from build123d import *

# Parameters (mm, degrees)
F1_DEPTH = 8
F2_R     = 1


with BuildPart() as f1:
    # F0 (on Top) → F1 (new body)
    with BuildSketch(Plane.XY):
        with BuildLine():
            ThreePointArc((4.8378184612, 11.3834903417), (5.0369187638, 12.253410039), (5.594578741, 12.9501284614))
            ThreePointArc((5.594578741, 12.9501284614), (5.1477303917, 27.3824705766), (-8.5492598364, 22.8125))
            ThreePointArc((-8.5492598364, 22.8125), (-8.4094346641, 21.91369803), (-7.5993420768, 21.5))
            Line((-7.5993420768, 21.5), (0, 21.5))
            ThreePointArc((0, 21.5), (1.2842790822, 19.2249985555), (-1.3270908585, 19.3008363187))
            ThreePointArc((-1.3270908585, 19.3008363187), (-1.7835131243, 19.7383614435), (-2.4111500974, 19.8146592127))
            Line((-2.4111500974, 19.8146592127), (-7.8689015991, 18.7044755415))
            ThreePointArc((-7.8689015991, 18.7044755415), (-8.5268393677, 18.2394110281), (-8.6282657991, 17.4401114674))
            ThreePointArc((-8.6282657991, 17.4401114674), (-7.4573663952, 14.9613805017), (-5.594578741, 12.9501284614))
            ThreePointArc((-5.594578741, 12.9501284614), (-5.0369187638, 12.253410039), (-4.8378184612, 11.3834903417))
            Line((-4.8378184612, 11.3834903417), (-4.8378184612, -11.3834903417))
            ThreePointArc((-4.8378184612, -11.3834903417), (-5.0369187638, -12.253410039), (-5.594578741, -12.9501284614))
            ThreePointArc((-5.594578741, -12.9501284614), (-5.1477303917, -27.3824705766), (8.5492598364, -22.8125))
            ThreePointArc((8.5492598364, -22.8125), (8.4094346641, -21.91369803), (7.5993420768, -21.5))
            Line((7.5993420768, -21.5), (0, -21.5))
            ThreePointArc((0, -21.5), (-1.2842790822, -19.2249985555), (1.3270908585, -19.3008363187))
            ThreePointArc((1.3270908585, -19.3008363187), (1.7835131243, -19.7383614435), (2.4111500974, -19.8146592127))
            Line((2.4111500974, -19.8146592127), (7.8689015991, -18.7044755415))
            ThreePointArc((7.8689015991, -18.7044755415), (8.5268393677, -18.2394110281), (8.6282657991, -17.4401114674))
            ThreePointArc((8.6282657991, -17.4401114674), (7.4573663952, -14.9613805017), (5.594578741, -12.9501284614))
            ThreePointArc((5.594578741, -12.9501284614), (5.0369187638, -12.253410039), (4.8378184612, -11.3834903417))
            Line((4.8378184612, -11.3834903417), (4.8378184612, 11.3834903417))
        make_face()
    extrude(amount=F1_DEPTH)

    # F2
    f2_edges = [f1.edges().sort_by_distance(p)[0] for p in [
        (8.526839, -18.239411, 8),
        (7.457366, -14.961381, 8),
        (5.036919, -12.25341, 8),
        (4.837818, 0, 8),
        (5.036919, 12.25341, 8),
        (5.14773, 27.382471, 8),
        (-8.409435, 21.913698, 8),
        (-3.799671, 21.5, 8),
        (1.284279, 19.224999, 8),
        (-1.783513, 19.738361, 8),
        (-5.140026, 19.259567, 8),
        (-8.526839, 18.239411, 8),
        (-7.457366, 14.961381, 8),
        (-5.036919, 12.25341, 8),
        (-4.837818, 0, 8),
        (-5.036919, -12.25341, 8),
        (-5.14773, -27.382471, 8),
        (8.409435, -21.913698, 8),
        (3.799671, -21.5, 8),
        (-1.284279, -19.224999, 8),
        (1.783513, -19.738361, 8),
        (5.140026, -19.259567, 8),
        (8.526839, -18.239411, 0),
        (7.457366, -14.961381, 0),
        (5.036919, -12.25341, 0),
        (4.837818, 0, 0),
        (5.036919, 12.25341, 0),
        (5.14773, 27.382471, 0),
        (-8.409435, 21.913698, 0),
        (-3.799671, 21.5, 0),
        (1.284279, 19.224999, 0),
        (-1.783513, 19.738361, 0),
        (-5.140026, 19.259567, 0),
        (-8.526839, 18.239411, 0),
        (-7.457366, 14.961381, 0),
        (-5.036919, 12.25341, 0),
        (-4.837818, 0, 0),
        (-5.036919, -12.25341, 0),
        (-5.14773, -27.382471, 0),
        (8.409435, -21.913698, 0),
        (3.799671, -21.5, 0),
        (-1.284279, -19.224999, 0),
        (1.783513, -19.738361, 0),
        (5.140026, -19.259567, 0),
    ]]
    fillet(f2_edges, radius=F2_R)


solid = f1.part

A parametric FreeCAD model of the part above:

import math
import FreeCAD as App
import Part
import Sketcher

V = App.Vector


def edges_at(feature, points):
    """Names of the edges that pass closest to the given points."""
    edges = feature.Shape.Edges
    near = lambda p: min(range(len(edges)), key=lambda i: edges[i].distToShape(Part.Vertex(*p))[0])
    return sorted({f"Edge{near(p) + 1}" for p in points})

doc = App.newDocument("Part")
body = doc.addObject("PartDesign::Body", "Body")

sketch1 = body.newObject("Sketcher::SketchObject", "Sketch")
sketch1.AttachmentSupport = (doc.getObject("XY_Plane"), [""])
sketch1.MapMode = "FlatFace"
sketch1.addGeometry(Part.ArcOfCircle(Part.Circle(V(6.837818, 11.38349, 0), V(0, 0, 1), 2), math.radians(128.434522), math.radians(180)), False)
sketch1.addGeometry(Part.ArcOfCircle(Part.Circle(V(0, 20, 0), V(0, 0, 1), 9), math.radians(-51.565478), math.radians(161.790043)), False)
sketch1.addGeometry(Part.ArcOfCircle(Part.Circle(V(-7.599342, 22.5, 0), V(0, 0, 1), 1), math.radians(161.790043), math.radians(270)), False)
sketch1.addGeometry(Part.LineSegment(V(-7.599342, 21.5, 0), V(0, 21.5, 0)), False)
sketch1.addGeometry(Part.ArcOfCircle(Part.Circle(V(0, 20, 0), V(0, 0, 1), 1.5), math.radians(-152.217974), math.radians(90)), False)
sketch1.addGeometry(Part.ArcOfCircle(Part.Circle(V(-2.211818, 18.834727, 0), V(0, 0, 1), 1), math.radians(27.782026), math.radians(101.497899)), False)
sketch1.addGeometry(Part.LineSegment(V(-2.41115, 19.814659, 0), V(-7.868902, 18.704476, 0)), False)
sketch1.addGeometry(Part.ArcOfCircle(Part.Circle(V(-7.66957, 17.724544, 0), V(0, 0, 1), 1), math.radians(101.497899), math.radians(196.524903)), False)
sketch1.addGeometry(Part.ArcOfCircle(Part.Circle(V(0, 20, 0), V(0, 0, 1), 9), math.radians(-163.475097), math.radians(-128.434522)), False)
sketch1.addGeometry(Part.ArcOfCircle(Part.Circle(V(-6.837818, 11.38349, 0), V(0, 0, 1), 2), math.radians(0), math.radians(51.565478)), False)
sketch1.addGeometry(Part.LineSegment(V(-4.837818, 11.38349, 0), V(-4.837818, -11.38349, 0)), False)
sketch1.addGeometry(Part.ArcOfCircle(Part.Circle(V(-6.837818, -11.38349, 0), V(0, 0, 1), 2), math.radians(-51.565478), math.radians(0)), False)
sketch1.addGeometry(Part.ArcOfCircle(Part.Circle(V(0, -20, 0), V(0, 0, 1), 9), math.radians(128.434522), math.radians(341.790043)), False)
sketch1.addGeometry(Part.ArcOfCircle(Part.Circle(V(7.599342, -22.5, 0), V(0, 0, 1), 1), math.radians(-18.209957), math.radians(90)), False)
sketch1.addGeometry(Part.LineSegment(V(7.599342, -21.5, 0), V(0, -21.5, 0)), False)
sketch1.addGeometry(Part.ArcOfCircle(Part.Circle(V(0, -20, 0), V(0, 0, 1), 1.5), math.radians(27.782026), math.radians(270)), False)
sketch1.addGeometry(Part.ArcOfCircle(Part.Circle(V(2.211818, -18.834727, 0), V(0, 0, 1), 1), math.radians(-152.217974), math.radians(-78.502101)), False)
sketch1.addGeometry(Part.LineSegment(V(2.41115, -19.814659, 0), V(7.868902, -18.704476, 0)), False)
sketch1.addGeometry(Part.ArcOfCircle(Part.Circle(V(7.66957, -17.724544, 0), V(0, 0, 1), 1), math.radians(-78.502101), math.radians(16.524903)), False)
sketch1.addGeometry(Part.ArcOfCircle(Part.Circle(V(0, -20, 0), V(0, 0, 1), 9), math.radians(16.524903), math.radians(51.565478)), False)
sketch1.addGeometry(Part.ArcOfCircle(Part.Circle(V(6.837818, -11.38349, 0), V(0, 0, 1), 2), math.radians(180), math.radians(231.565478)), False)
sketch1.addGeometry(Part.LineSegment(V(4.837818, -11.38349, 0), V(4.837818, 11.38349, 0)), False)
sketch1.addConstraint(Sketcher.Constraint("Tangent", 0, 1, 1, 1))
sketch1.addConstraint(Sketcher.Constraint("Tangent", 1, 2, 2, 1))
sketch1.addConstraint(Sketcher.Constraint("Tangent", 2, 2, 3, 1))
sketch1.addConstraint(Sketcher.Constraint("Tangent", 3, 2, 4, 2))
sketch1.addConstraint(Sketcher.Constraint("Tangent", 4, 1, 5, 1))
sketch1.addConstraint(Sketcher.Constraint("Tangent", 5, 2, 6, 1))
sketch1.addConstraint(Sketcher.Constraint("Tangent", 6, 2, 7, 1))
sketch1.addConstraint(Sketcher.Constraint("Tangent", 7, 2, 8, 1))
sketch1.addConstraint(Sketcher.Constraint("Tangent", 8, 2, 9, 2))
sketch1.addConstraint(Sketcher.Constraint("Tangent", 9, 1, 10, 1))
sketch1.addConstraint(Sketcher.Constraint("Tangent", 10, 2, 11, 2))
sketch1.addConstraint(Sketcher.Constraint("Tangent", 11, 1, 12, 1))
sketch1.addConstraint(Sketcher.Constraint("Tangent", 12, 2, 13, 1))
sketch1.addConstraint(Sketcher.Constraint("Tangent", 13, 2, 14, 1))
sketch1.addConstraint(Sketcher.Constraint("Tangent", 14, 2, 15, 2))
sketch1.addConstraint(Sketcher.Constraint("Tangent", 15, 1, 16, 1))
sketch1.addConstraint(Sketcher.Constraint("Tangent", 16, 2, 17, 1))
sketch1.addConstraint(Sketcher.Constraint("Tangent", 17, 2, 18, 1))
sketch1.addConstraint(Sketcher.Constraint("Tangent", 18, 2, 19, 1))
sketch1.addConstraint(Sketcher.Constraint("Tangent", 19, 2, 20, 2))
sketch1.addConstraint(Sketcher.Constraint("Tangent", 20, 1, 21, 1))
sketch1.addConstraint(Sketcher.Constraint("Tangent", 21, 2, 0, 2))
sketch1.addConstraint(Sketcher.Constraint("Horizontal", 3))
sketch1.addConstraint(Sketcher.Constraint("Vertical", 10))
sketch1.addConstraint(Sketcher.Constraint("Horizontal", 14))
sketch1.addConstraint(Sketcher.Constraint("Vertical", 21))
sketch1.addConstraint(Sketcher.Constraint("Coincident", 4, 3, 1, 3))
sketch1.addConstraint(Sketcher.Constraint("Coincident", 8, 3, 1, 3))
sketch1.addConstraint(Sketcher.Constraint("Coincident", 15, 3, 12, 3))
sketch1.addConstraint(Sketcher.Constraint("Coincident", 19, 3, 12, 3))
sketch1.addConstraint(Sketcher.Constraint("Equal", 2, 5))
sketch1.addConstraint(Sketcher.Constraint("Equal", 5, 7))
sketch1.addConstraint(Sketcher.Constraint("Equal", 1, 8))
sketch1.addConstraint(Sketcher.Constraint("Equal", 0, 9))
sketch1.addConstraint(Sketcher.Constraint("Equal", 9, 11))
sketch1.addConstraint(Sketcher.Constraint("Equal", 8, 12))
sketch1.addConstraint(Sketcher.Constraint("Equal", 7, 13))
sketch1.addConstraint(Sketcher.Constraint("Equal", 4, 15))
sketch1.addConstraint(Sketcher.Constraint("Equal", 13, 16))
sketch1.addConstraint(Sketcher.Constraint("Equal", 16, 18))
sketch1.addConstraint(Sketcher.Constraint("Equal", 12, 19))
sketch1.addConstraint(Sketcher.Constraint("Equal", 11, 20))
sketch1.addConstraint(Sketcher.Constraint("Symmetric", 0, 3, 11, 3, -1, 1))
sketch1.addConstraint(Sketcher.Constraint("Symmetric", 5, 3, 16, 3, -1, 1))
sketch1.addConstraint(Sketcher.Constraint("PointOnObject", 1, 3, -2))
sketch1.addConstraint(Sketcher.Constraint("Parallel", 6, 17))
sketch1.addConstraint(Sketcher.Constraint("Radius", 0, 2.0))
sketch1.addConstraint(Sketcher.Constraint("Radius", 1, 9.0))
sketch1.addConstraint(Sketcher.Constraint("Radius", 2, 1.0))
sketch1.addConstraint(Sketcher.Constraint("Radius", 4, 1.5))
sketch1.addConstraint(Sketcher.Constraint("DistanceY", -1, 1, 1, 3, 20.0))
sketch1.addConstraint(Sketcher.Constraint("DistanceX", 9, 3, 5, 3, 4.626))
sketch1.addConstraint(Sketcher.Constraint("DistanceY", 10, 2, 10, 1, 22.766981))
sketch1.addConstraint(Sketcher.Constraint("DistanceX", 6, 2, -1, 1, 7.868902))
pad1 = body.newObject("PartDesign::Pad", "Pad")
pad1.Profile = sketch1
pad1.Length = 8
doc.recompute()

fillet = body.newObject("PartDesign::Fillet", "Fillet")
fillet.Base = (pad1, edges_at(pad1, [
    (8.527, -18.239, 8),
    (7.457, -14.961, 8),
    (5.037, -12.253, 8),
    (4.838, 0, 8),
    (5.037, 12.253, 8),
    (5.148, 27.382, 8),
    (-8.409, 21.914, 8),
    (-3.8, 21.5, 8),
    (1.284, 19.225, 8),
    (-1.784, 19.738, 8),
    (-5.14, 19.26, 8),
    (-8.527, 18.239, 8),
    (-7.457, 14.961, 8),
    (-5.037, 12.253, 8),
    (-4.838, 0, 8),
    (-5.037, -12.253, 8),
    (-5.148, -27.382, 8),
    (8.409, -21.914, 8),
    (3.8, -21.5, 8),
    (-1.284, -19.225, 8),
    (1.784, -19.738, 8),
    (5.14, -19.26, 8),
    (8.527, -18.239, 0),
    (7.457, -14.961, 0),
    (5.037, -12.253, 0),
    (4.838, 0, 0),
    (5.037, 12.253, 0),
    (5.148, 27.382, 0),
    (-8.409, 21.914, 0),
    (-3.8, 21.5, 0),
    (1.284, 19.225, 0),
    (-1.784, 19.738, 0),
    (-5.14, 19.26, 0),
    (-8.527, 18.239, 0),
    (-7.457, 14.961, 0),
    (-5.037, 12.253, 0),
    (-4.838, 0, 0),
    (-5.037, -12.253, 0),
    (-5.148, -27.382, 0),
    (8.409, -21.914, 0),
    (3.8, -21.5, 0),
    (-1.284, -19.225, 0),
    (1.784, -19.738, 0),
    (5.14, -19.26, 0),
]))
fillet.Radius = 1

doc.recompute()
